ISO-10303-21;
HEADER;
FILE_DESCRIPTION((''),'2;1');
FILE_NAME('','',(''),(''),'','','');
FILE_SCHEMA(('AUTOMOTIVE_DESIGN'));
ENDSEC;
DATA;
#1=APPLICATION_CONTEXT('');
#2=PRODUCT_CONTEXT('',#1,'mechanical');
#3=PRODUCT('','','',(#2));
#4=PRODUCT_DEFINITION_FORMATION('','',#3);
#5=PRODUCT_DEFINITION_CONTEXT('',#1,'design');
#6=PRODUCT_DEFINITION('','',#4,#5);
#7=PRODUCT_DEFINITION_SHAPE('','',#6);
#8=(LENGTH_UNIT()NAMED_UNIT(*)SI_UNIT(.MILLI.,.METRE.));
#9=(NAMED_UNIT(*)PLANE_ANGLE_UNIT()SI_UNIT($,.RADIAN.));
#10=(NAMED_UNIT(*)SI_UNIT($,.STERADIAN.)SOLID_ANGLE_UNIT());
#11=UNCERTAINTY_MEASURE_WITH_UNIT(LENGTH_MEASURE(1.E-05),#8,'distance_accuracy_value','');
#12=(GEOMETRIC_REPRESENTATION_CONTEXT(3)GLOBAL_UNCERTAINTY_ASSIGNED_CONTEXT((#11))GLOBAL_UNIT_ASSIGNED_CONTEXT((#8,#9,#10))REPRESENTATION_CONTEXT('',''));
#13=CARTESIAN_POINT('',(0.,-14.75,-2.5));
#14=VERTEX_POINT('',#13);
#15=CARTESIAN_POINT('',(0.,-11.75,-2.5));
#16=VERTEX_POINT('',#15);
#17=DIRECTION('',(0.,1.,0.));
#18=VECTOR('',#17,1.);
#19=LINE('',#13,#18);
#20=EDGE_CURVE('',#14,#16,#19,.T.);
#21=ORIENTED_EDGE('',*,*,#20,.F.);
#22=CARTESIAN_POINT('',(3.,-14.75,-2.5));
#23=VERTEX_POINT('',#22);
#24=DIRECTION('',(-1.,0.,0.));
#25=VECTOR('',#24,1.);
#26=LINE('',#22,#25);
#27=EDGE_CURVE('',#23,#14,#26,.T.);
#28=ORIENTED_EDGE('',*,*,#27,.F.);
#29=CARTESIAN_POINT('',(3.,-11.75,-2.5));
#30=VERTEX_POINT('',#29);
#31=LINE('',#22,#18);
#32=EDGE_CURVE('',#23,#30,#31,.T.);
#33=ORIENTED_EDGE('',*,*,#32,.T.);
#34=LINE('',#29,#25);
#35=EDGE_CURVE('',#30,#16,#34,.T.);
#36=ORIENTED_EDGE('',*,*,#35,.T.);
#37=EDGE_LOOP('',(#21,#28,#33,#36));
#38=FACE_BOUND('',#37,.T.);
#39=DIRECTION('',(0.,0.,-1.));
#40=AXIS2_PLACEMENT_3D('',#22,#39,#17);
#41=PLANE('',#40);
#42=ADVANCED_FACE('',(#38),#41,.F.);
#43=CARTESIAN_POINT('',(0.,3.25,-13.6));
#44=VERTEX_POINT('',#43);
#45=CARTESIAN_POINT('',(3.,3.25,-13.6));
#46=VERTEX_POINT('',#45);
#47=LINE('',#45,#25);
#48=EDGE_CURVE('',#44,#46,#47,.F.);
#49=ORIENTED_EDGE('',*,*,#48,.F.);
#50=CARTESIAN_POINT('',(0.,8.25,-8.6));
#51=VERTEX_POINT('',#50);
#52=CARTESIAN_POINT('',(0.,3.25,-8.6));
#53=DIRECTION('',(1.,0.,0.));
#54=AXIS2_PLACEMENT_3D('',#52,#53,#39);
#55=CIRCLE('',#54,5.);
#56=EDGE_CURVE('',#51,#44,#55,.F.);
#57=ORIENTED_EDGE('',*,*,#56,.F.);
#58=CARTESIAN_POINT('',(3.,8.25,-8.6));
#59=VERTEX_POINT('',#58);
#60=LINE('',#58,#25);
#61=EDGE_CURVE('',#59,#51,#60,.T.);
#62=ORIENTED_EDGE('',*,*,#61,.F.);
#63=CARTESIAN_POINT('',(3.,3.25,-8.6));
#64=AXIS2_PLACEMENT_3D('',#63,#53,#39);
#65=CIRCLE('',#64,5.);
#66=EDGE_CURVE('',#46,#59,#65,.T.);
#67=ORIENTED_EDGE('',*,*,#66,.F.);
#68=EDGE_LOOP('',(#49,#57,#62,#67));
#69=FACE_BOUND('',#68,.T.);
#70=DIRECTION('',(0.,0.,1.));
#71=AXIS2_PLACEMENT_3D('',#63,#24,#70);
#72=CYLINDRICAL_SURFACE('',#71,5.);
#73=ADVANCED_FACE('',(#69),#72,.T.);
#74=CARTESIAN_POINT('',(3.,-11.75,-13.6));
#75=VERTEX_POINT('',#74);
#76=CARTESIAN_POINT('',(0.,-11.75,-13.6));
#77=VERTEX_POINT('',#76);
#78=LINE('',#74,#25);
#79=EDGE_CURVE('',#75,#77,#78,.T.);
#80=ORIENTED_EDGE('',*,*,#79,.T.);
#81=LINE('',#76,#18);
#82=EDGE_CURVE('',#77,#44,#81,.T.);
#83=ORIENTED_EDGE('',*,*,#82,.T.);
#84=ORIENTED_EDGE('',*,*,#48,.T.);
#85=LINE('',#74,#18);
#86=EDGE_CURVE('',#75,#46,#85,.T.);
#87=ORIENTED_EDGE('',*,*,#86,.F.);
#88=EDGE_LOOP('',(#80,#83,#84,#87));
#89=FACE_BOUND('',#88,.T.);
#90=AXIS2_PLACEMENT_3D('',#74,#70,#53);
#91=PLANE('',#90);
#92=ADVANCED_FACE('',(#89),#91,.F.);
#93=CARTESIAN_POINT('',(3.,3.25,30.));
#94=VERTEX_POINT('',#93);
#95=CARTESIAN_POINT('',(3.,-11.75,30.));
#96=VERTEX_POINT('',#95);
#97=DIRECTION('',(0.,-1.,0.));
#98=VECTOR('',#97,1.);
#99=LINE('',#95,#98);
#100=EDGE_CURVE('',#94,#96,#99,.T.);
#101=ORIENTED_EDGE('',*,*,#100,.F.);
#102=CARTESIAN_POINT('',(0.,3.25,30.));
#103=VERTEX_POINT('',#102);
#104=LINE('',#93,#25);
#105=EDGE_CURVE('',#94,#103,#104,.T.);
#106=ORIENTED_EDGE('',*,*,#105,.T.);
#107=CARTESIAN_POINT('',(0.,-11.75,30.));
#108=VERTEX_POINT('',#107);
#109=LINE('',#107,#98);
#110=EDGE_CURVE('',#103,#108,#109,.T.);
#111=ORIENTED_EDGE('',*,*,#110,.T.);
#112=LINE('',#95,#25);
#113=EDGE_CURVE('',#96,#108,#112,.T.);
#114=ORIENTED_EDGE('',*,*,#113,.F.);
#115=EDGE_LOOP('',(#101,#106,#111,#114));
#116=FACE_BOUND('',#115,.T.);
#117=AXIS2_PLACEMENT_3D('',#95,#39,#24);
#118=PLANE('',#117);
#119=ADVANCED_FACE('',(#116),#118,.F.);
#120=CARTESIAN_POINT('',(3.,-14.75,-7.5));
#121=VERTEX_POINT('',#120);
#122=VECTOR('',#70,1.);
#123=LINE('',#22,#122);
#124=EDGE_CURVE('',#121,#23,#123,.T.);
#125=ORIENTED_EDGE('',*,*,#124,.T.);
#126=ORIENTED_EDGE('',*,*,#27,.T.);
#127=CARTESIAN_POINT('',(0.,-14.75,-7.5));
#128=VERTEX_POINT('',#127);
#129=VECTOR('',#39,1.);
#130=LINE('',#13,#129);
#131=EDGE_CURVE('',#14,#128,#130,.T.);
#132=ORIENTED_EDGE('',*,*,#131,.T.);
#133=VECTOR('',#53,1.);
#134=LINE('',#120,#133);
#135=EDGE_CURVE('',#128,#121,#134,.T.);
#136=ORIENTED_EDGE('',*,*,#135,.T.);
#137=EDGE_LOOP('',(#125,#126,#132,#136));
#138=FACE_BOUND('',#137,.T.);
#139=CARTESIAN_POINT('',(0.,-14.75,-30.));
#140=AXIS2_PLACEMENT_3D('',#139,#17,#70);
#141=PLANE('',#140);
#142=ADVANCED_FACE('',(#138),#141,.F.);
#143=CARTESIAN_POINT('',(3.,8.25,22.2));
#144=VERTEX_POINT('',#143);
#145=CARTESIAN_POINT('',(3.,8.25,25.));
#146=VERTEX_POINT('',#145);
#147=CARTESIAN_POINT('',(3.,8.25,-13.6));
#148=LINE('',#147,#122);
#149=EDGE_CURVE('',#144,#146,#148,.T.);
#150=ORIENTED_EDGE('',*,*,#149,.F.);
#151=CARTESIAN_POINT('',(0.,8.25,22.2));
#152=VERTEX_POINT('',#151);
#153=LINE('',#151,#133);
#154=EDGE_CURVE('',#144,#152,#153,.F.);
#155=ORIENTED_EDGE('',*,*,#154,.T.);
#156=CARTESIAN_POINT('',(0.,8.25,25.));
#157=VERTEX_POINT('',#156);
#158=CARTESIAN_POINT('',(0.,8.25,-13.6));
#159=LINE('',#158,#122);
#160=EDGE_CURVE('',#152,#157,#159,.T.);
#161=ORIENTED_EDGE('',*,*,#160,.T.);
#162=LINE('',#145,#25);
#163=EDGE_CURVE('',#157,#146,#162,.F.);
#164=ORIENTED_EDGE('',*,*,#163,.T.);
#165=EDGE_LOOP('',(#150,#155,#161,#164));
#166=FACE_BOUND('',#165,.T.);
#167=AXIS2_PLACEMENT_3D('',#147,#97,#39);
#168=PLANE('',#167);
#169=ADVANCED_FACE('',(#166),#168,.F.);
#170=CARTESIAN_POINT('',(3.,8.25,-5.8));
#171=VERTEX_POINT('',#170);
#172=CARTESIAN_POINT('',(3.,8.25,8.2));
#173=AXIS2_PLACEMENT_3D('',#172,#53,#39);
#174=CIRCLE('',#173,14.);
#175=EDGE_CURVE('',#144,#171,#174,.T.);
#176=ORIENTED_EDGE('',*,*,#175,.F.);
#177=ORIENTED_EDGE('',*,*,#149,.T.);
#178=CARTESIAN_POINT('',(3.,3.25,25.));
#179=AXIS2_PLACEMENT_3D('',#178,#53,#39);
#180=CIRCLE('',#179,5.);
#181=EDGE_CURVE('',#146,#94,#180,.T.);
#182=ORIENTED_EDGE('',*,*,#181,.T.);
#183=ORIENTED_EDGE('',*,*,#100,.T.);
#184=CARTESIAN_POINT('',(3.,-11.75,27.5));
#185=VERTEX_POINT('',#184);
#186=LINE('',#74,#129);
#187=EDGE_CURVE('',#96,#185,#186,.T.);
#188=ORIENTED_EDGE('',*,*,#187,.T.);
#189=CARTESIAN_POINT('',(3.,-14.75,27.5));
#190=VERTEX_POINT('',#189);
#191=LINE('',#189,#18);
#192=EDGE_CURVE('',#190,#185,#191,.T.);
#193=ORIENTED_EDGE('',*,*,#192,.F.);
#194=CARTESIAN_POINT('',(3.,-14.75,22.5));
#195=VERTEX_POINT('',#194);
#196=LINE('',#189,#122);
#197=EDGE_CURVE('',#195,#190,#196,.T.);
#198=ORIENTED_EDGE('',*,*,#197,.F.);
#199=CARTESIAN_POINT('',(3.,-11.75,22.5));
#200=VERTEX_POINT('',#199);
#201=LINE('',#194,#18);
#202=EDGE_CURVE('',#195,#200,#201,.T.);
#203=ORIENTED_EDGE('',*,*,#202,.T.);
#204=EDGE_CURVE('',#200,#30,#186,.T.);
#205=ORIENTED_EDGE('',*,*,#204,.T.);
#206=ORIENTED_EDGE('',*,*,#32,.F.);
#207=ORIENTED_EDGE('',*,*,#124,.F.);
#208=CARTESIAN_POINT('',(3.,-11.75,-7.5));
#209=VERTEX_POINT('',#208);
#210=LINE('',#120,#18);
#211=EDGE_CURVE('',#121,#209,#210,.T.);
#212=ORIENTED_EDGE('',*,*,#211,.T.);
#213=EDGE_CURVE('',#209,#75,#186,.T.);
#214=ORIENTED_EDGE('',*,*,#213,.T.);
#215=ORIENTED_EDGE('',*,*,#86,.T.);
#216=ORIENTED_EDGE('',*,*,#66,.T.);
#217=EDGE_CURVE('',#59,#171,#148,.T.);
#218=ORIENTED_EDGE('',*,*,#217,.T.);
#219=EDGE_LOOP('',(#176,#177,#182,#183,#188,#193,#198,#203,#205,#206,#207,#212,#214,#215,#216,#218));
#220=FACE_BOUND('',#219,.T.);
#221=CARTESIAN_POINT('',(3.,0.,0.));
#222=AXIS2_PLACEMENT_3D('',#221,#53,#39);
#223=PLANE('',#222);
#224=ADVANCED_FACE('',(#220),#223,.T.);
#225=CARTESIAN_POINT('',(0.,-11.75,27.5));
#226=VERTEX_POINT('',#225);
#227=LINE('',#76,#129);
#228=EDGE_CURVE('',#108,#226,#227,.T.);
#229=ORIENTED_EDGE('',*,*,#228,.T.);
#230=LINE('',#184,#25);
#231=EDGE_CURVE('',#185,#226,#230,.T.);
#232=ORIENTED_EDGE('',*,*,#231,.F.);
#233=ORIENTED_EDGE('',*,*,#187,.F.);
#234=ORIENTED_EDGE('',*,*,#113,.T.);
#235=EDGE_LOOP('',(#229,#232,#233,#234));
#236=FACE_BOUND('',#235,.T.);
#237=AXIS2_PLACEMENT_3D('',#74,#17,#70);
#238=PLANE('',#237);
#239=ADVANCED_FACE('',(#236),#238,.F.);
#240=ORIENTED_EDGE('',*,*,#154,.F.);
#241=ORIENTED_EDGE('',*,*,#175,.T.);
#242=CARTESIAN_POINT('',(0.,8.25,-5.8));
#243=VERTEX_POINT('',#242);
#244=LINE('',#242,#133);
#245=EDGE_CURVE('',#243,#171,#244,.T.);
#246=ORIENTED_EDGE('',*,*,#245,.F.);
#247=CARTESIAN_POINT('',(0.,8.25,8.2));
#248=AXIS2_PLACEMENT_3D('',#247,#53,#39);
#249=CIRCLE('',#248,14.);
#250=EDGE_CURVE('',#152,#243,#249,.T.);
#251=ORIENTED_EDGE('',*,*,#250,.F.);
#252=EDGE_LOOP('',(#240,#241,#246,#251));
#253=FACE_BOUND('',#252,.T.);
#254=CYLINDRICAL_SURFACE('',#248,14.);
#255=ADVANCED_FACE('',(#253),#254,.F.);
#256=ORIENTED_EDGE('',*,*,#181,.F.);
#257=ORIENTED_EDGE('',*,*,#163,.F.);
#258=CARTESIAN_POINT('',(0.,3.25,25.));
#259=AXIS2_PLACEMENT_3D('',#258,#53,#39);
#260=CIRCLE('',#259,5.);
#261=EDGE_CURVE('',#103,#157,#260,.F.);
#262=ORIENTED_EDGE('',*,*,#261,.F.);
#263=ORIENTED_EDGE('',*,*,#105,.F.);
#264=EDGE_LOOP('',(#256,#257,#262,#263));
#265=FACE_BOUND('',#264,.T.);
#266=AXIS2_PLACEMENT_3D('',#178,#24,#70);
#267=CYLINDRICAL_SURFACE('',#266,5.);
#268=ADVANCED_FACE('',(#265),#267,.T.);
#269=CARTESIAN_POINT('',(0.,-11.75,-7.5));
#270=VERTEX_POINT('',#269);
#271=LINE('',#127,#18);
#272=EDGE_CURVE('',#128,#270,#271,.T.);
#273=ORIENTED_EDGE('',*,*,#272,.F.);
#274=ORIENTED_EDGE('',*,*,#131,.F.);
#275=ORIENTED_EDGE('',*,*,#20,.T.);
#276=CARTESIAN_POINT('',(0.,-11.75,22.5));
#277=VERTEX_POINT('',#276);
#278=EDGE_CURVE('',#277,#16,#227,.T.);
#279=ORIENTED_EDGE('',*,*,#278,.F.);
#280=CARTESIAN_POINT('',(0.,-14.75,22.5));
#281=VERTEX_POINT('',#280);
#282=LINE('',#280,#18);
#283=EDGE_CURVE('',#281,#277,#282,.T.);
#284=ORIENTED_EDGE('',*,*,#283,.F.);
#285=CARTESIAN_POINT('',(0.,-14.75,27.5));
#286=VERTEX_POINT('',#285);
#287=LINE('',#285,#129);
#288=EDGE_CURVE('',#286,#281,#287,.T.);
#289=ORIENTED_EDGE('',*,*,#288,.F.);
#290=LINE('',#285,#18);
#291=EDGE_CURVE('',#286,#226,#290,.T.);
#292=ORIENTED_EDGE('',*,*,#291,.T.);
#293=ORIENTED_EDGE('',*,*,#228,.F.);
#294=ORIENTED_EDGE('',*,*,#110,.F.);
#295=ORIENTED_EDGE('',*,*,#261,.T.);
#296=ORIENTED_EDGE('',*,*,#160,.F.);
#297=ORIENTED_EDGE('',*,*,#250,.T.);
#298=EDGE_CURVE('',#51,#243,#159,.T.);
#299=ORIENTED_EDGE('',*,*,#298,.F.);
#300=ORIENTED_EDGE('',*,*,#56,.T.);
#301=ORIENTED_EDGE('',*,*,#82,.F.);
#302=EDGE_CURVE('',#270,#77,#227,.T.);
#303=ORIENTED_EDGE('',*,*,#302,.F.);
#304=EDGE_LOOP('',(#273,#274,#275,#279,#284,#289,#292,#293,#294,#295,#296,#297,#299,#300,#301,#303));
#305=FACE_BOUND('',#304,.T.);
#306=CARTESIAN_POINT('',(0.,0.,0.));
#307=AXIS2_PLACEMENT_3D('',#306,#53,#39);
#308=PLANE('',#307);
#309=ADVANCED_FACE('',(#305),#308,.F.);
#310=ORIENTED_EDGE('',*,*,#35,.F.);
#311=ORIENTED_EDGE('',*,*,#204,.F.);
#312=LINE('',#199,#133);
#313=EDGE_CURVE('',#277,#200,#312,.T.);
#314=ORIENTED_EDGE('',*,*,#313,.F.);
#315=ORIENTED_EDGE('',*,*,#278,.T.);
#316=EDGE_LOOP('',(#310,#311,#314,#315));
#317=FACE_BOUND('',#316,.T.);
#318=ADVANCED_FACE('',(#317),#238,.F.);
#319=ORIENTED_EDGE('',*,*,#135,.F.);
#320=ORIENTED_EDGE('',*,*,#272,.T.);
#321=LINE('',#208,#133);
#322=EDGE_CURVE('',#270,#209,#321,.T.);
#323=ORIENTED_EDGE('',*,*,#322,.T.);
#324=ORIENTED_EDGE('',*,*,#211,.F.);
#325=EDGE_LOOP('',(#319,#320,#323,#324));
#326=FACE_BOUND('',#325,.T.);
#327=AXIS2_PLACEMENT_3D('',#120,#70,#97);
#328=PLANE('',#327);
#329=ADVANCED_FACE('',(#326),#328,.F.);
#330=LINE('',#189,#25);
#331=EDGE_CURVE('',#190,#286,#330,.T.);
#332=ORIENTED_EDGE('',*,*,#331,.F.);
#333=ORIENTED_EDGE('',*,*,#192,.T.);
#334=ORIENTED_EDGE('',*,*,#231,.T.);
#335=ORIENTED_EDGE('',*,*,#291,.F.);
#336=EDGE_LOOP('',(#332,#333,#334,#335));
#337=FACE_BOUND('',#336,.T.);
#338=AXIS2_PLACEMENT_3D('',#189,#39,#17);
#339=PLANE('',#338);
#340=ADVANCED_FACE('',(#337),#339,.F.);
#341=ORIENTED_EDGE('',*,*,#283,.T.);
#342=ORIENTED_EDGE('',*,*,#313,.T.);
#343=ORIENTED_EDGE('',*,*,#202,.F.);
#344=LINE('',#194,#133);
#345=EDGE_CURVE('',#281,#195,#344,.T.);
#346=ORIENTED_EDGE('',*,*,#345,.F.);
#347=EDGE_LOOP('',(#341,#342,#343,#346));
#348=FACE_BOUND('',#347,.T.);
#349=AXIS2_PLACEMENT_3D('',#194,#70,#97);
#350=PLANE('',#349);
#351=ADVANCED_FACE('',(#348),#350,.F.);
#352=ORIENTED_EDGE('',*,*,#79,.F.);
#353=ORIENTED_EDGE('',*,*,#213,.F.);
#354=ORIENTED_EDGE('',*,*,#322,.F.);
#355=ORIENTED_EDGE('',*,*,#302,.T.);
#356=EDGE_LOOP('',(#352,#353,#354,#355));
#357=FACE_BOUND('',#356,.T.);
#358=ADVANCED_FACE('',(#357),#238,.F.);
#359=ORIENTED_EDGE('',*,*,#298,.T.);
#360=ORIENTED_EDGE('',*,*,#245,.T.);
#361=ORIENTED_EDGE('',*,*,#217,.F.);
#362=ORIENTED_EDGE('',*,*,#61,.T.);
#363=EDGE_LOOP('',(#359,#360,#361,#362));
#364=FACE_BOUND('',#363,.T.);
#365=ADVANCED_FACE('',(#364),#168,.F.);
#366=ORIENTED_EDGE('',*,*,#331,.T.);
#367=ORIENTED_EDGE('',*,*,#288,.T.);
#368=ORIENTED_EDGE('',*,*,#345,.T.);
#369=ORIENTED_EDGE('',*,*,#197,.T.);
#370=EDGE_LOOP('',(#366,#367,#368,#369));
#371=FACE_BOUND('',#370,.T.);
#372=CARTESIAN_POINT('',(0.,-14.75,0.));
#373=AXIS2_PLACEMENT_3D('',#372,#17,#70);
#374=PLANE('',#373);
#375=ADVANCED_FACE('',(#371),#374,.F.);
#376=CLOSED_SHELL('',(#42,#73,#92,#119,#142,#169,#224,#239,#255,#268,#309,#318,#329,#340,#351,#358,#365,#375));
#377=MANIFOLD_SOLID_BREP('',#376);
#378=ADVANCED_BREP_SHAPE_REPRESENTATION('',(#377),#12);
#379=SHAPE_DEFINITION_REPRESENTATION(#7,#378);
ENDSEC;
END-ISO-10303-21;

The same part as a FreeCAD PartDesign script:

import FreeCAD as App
import Part
import Sketcher


def edges_at(feature, points):
    """Names of the edges that pass closest to the given points."""
    edges = feature.Shape.Edges
    near = lambda p: min(range(len(edges)), key=lambda i: edges[i].distToShape(Part.Vertex(*p))[0])
    return sorted({f"Edge{near(p) + 1}" for p in points})

doc = App.newDocument("Part")
body = doc.addObject("PartDesign::Body", "Body")

sketch1 = doc.addObject("Sketcher::SketchObject", "Sketch")
body.addObject(sketch1)
sketch1.AttachmentSupport = (doc.YZ_Plane, [""])
sketch1.MapMode = "FlatFace"
sketch1.addGeometry([
    Part.LineSegment(App.Vector(8, 30, 0), App.Vector(-12, 30, 0)),
    Part.LineSegment(App.Vector(-12, 30, 0), App.Vector(-12, -14, 0)),
    Part.LineSegment(App.Vector(-12, -14, 0), App.Vector(8, -14, 0)),
    Part.LineSegment(App.Vector(8, -14, 0), App.Vector(8, 30, 0)),
], False)
sketch1.addConstraint([
    Sketcher.Constraint("Coincident", 0, 2, 1, 1),
    Sketcher.Constraint("Coincident", 1, 2, 2, 1),
    Sketcher.Constraint("Coincident", 2, 2, 3, 1),
    Sketcher.Constraint("Coincident", 3, 2, 0, 1),
    Sketcher.Constraint("Horizontal", 0),
    Sketcher.Constraint("Vertical", 1),
    Sketcher.Constraint("Horizontal", 2),
    Sketcher.Constraint("Vertical", 3),
    Sketcher.Constraint("DistanceX", 0, 2, 0, 1, 20.0),
    Sketcher.Constraint("DistanceY", 1, 2, 1, 1, 43.6),
    Sketcher.Constraint("DistanceY", -1, 1, 0, 2, 30.0),
    Sketcher.Constraint("DistanceX", 0, 2, -1, 1, 11.75),
])
pad1 = doc.addObject("PartDesign::Pad", "Pad")
body.addObject(pad1)
pad1.Profile = sketch1
pad1.Length = 3

sketch2 = doc.addObject("Sketcher::SketchObject", "Sketch001")
body.addObject(sketch2)
sketch2.AttachmentSupport = (doc.YZ_Plane, [""])
sketch2.MapMode = "FlatFace"
sketch2.AttachmentOffset = App.Placement(App.Vector(0, 0, 3), App.Rotation())
sketch2.addGeometry(Part.Circle(App.Vector(8, 8, 0), App.Vector(0, 0, 1), 14), False)
sketch2.addConstraint([
    Sketcher.Constraint("Diameter", 0, 28.0),
    Sketcher.Constraint("DistanceY", -1, 1, 0, 3, 8.2),
    Sketcher.Constraint("DistanceX", -1, 1, 0, 3, 8.25),
])
pocket1 = doc.addObject("PartDesign::Pocket", "Pocket")
body.addObject(pocket1)
pocket1.Profile = sketch2
pocket1.Type = "ThroughAll"
doc.recompute()

fillet = doc.addObject("PartDesign::Fillet", "Fillet")
body.addObject(fillet)
fillet.Base = (pocket1, edges_at(pocket1, [(1.5, 8.25, 30), (1.5, 8.25, -13.6)]))
fillet.Radius = 5

sketch3 = doc.addObject("Sketcher::SketchObject", "Sketch002")
body.addObject(sketch3)
sketch3.AttachmentSupport = (doc.XZ_Plane, [""])
sketch3.MapMode = "FlatFace"
sketch3.AttachmentOffset = App.Placement(App.Vector(0, 0, 11.75), App.Rotation())
sketch3.addGeometry([
    Part.LineSegment(App.Vector(0, 27.5, 0), App.Vector(0, 22.5, 0)),
    Part.LineSegment(App.Vector(0, 22.5, 0), App.Vector(3, 22.5, 0)),
    Part.LineSegment(App.Vector(3, 22.5, 0), App.Vector(3, 27.5, 0)),
    Part.LineSegment(App.Vector(3, 27.5, 0), App.Vector(0, 27.5, 0)),
], False)
sketch3.addConstraint([
    Sketcher.Constraint("Coincident", 0, 2, 1, 1),
    Sketcher.Constraint("Coincident", 1, 2, 2, 1),
    Sketcher.Constraint("Coincident", 2, 2, 3, 1),
    Sketcher.Constraint("Coincident", 3, 2, 0, 1),
    Sketcher.Constraint("Vertical", 0),
    Sketcher.Constraint("Horizontal", 1),
    Sketcher.Constraint("Vertical", 2),
    Sketcher.Constraint("Horizontal", 3),
    Sketcher.Constraint("PointOnObject", 0, 2, -2),
    Sketcher.Constraint("DistanceX", 1, 1, 1, 2, 3.0),
    Sketcher.Constraint("DistanceY", 0, 2, 0, 1, 5.0),
    Sketcher.Constraint("DistanceY", -1, 1, 0, 2, 22.5),
])
pad2 = doc.addObject("PartDesign::Pad", "Pad001")
body.addObject(pad2)
pad2.Profile = sketch3
pad2.Length = 3
doc.recompute()

linearpattern = doc.addObject("PartDesign::LinearPattern", "LinearPattern")
body.addObject(linearpattern)
linearpattern.Originals = [pad2]
linearpattern.Direction = (doc.Z_Axis, [""])
linearpattern.Mode = "offset"
linearpattern.Offset = 30
linearpattern.Occurrences = 2
linearpattern.Reversed = True
body.Tip = linearpattern

doc.recompute()
